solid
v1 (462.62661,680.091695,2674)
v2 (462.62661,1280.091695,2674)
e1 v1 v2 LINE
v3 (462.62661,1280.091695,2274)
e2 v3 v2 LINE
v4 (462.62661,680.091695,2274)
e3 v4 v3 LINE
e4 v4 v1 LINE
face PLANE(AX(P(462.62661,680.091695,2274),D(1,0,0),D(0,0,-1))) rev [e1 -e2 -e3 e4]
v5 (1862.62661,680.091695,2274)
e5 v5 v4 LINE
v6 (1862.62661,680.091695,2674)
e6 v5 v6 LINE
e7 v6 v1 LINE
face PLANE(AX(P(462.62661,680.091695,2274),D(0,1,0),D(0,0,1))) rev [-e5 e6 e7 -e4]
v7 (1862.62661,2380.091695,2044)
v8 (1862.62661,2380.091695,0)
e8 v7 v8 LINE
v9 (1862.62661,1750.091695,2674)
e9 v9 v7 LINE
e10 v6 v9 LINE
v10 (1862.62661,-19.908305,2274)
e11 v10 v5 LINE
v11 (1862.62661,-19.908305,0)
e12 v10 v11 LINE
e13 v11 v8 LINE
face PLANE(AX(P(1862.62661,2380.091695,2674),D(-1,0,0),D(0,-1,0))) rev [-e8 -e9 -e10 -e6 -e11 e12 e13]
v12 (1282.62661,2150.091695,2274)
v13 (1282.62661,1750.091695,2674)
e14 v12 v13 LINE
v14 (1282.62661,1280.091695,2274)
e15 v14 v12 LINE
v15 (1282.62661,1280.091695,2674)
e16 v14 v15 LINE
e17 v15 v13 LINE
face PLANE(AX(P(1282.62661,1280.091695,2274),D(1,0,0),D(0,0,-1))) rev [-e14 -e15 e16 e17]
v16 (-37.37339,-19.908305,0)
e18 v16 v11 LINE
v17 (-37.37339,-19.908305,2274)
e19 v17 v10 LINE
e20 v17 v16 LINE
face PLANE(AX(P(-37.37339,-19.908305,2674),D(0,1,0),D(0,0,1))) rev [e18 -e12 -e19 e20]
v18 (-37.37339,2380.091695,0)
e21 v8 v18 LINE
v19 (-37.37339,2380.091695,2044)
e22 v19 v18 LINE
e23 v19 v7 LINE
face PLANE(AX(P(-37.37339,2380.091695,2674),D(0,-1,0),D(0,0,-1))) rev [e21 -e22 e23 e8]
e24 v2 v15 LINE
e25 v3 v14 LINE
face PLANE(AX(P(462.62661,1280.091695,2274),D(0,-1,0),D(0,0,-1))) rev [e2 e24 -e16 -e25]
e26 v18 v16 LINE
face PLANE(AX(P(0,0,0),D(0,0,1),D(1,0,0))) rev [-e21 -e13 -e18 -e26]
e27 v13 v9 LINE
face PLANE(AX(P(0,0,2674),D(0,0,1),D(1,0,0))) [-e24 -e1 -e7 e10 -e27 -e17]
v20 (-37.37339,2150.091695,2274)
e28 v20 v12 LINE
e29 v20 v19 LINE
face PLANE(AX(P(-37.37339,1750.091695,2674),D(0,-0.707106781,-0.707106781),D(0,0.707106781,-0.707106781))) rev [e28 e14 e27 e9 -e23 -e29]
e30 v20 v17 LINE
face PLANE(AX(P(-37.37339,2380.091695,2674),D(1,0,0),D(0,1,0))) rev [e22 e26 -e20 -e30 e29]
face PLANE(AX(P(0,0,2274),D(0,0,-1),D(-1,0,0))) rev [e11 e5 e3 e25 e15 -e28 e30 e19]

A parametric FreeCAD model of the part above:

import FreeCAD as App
import Part
import Sketcher
from FreeCAD import Vector
Q = App.Units.Quantity

doc = App.newDocument("Part")
body = doc.addObject("PartDesign::Body", "Body")

# Sketch on XY plane
sketch1 = body.newObject("Sketcher::SketchObject", "Sketch")
sketch1.AttachmentSupport = (doc.getObject("XY_Plane"), [""])
sketch1.MapMode = "FlatFace"
sketch1.addGeometry(Part.LineSegment(Vector(-37, 2380, 0), Vector(-37, -20, 0)), False)
sketch1.addGeometry(Part.LineSegment(Vector(-37, -20, 0), Vector(1863, -20, 0)), False)
sketch1.addGeometry(Part.LineSegment(Vector(1863, -20, 0), Vector(1863, 2380, 0)), False)
sketch1.addGeometry(Part.LineSegment(Vector(1863, 2380, 0), Vector(-37, 2380, 0)), False)
sketch1.addConstraint(Sketcher.Constraint("Coincident", 0, 2, 1, 1))
sketch1.addConstraint(Sketcher.Constraint("Coincident", 1, 2, 2, 1))
sketch1.addConstraint(Sketcher.Constraint("Coincident", 2, 2, 3, 1))
sketch1.addConstraint(Sketcher.Constraint("Coincident", 3, 2, 0, 1))
sketch1.addConstraint(Sketcher.Constraint("Vertical", 0))
sketch1.addConstraint(Sketcher.Constraint("Horizontal", 1))
sketch1.addConstraint(Sketcher.Constraint("Vertical", 2))
sketch1.addConstraint(Sketcher.Constraint("Horizontal", 3))
sketch1.addConstraint(Sketcher.Constraint("DistanceX", 1, 1, 1, 2, Q("1900 mm")))
sketch1.addConstraint(Sketcher.Constraint("DistanceY", 0, 2, 0, 1, Q("2400 mm")))
sketch1.addConstraint(Sketcher.Constraint("DistanceX", 0, 2, -1, 1, Q("37.37339 mm")))
sketch1.addConstraint(Sketcher.Constraint("DistanceY", 0, 2, -1, 1, Q("19.908305 mm")))
pad1 = body.newObject("PartDesign::Pad", "Pad")
pad1.Profile = sketch1
pad1.Length = 2674

# Sketch on YZ plane
sketch2 = body.newObject("Sketcher::SketchObject", "Sketch001")
sketch2.AttachmentSupport = (doc.getObject("YZ_Plane"), [""])
sketch2.MapMode = "FlatFace"
sketch2.AttachmentOffset = App.Placement(Vector(0, 0, 1862.62661), App.Rotation())
sketch2.addGeometry(Part.LineSegment(Vector(2380, 2674, 0), Vector(1750, 2674, 0)), False)
sketch2.addGeometry(Part.LineSegment(Vector(1750, 2674, 0), Vector(2380, 2044, 0)), False)
sketch2.addGeometry(Part.LineSegment(Vector(2380, 2044, 0), Vector(2380, 2674, 0)), False)
sketch2.addConstraint(Sketcher.Constraint("Coincident", 0, 2, 1, 1))
sketch2.addConstraint(Sketcher.Constraint("Coincident", 1, 2, 2, 1))
sketch2.addConstraint(Sketcher.Constraint("Coincident", 2, 2, 0, 1))
sketch2.addConstraint(Sketcher.Constraint("Horizontal", 0))
sketch2.addConstraint(Sketcher.Constraint("Vertical", 2))
sketch2.addConstraint(Sketcher.Constraint("Equal", 0, 2))
sketch2.addConstraint(Sketcher.Constraint("DistanceX", 0, 2, 0, 1, Q("630 mm")))
sketch2.addConstraint(Sketcher.Constraint("DistanceY", -1, 1, 0, 2, Q("2674 mm")))
sketch2.addConstraint(Sketcher.Constraint("DistanceX", -1, 1, 0, 2, Q("1750.091695 mm")))
pocket1 = body.newObject("PartDesign::Pocket", "Pocket")
pocket1.Profile = sketch2
pocket1.Type = "ThroughAll"

# Sketch on XY plane
sketch3 = body.newObject("Sketcher::SketchObject", "Sketch002")
sketch3.AttachmentSupport = (doc.getObject("XY_Plane"), [""])
sketch3.MapMode = "FlatFace"
sketch3.AttachmentOffset = App.Placement(Vector(0, 0, 2674), App.Rotation())
sketch3.addGeometry(Part.LineSegment(Vector(463, 1280, 0), Vector(1283, 1280, 0)), False)
sketch3.addGeometry(Part.LineSegment(Vector(1283, 1280, 0), Vector(1283, 2380, 0)), False)
sketch3.addGeometry(Part.LineSegment(Vector(1283, 2380, 0), Vector(-37, 2380, 0)), False)
sketch3.addGeometry(Part.LineSegment(Vector(-37, 2380, 0), Vector(-37, -20, 0)), False)
sketch3.addGeometry(Part.LineSegment(Vector(-37, -20, 0), Vector(1863, -20, 0)), False)
sketch3.addGeometry(Part.LineSegment(Vector(1863, -20, 0), Vector(1863, 680, 0)), False)
sketch3.addGeometry(Part.LineSegment(Vector(1863, 680, 0), Vector(463, 680, 0)), False)
sketch3.addGeometry(Part.LineSegment(Vector(463, 680, 0), Vector(463, 1280, 0)), False)
sketch3.addConstraint(Sketcher.Constraint("Coincident", 0, 2, 1, 1))
sketch3.addConstraint(Sketcher.Constraint("Coincident", 1, 2, 2, 1))
sketch3.addConstraint(Sketcher.Constraint("Coincident", 2, 2, 3, 1))
sketch3.addConstraint(Sketcher.Constraint("Coincident", 3, 2, 4, 1))
sketch3.addConstraint(Sketcher.Constraint("Coincident", 4, 2, 5, 1))
sketch3.addConstraint(Sketcher.Constraint("Coincident", 5, 2, 6, 1))
sketch3.addConstraint(Sketcher.Constraint("Coincident", 6, 2, 7, 1))
sketch3.addConstraint(Sketcher.Constraint("Coincident", 7, 2, 0, 1))
sketch3.addConstraint(Sketcher.Constraint("Horizontal", 0))
sketch3.addConstraint(Sketcher.Constraint("Vertical", 1))
sketch3.addConstraint(Sketcher.Constraint("Horizontal", 2))
sketch3.addConstraint(Sketcher.Constraint("Vertical", 3))
sketch3.addConstraint(Sketcher.Constraint("Horizontal", 4))
sketch3.addConstraint(Sketcher.Constraint("Vertical", 5))
sketch3.addConstraint(Sketcher.Constraint("Horizontal", 6))
sketch3.addConstraint(Sketcher.Constraint("Vertical", 7))
sketch3.addConstraint(Sketcher.Constraint("DistanceX", 0, 1, 0, 2, Q("820 mm")))
sketch3.addConstraint(Sketcher.Constraint("DistanceX", 2, 2, 2, 1, Q("1320 mm")))
sketch3.addConstraint(Sketcher.Constraint("DistanceX", 4, 1, 4, 2, Q("1900 mm")))
sketch3.addConstraint(Sketcher.Constraint("DistanceY", 1, 1, 1, 2, Q("1100 mm")))
sketch3.addConstraint(Sketcher.Constraint("DistanceY", 3, 2, 3, 1, Q("2400 mm")))
sketch3.addConstraint(Sketcher.Constraint("DistanceY", 5, 1, 5, 2, Q("700 mm")))
sketch3.addConstraint(Sketcher.Constraint("DistanceX", -1, 1, 0, 2, Q("1282.62661 mm")))
sketch3.addConstraint(Sketcher.Constraint("DistanceY", -1, 1, 0, 2, Q("1280.091695 mm")))
pocket2 = body.newObject("PartDesign::Pocket", "Pocket001")
pocket2.Profile = sketch3
pocket2.Length = 400

doc.recompute()
